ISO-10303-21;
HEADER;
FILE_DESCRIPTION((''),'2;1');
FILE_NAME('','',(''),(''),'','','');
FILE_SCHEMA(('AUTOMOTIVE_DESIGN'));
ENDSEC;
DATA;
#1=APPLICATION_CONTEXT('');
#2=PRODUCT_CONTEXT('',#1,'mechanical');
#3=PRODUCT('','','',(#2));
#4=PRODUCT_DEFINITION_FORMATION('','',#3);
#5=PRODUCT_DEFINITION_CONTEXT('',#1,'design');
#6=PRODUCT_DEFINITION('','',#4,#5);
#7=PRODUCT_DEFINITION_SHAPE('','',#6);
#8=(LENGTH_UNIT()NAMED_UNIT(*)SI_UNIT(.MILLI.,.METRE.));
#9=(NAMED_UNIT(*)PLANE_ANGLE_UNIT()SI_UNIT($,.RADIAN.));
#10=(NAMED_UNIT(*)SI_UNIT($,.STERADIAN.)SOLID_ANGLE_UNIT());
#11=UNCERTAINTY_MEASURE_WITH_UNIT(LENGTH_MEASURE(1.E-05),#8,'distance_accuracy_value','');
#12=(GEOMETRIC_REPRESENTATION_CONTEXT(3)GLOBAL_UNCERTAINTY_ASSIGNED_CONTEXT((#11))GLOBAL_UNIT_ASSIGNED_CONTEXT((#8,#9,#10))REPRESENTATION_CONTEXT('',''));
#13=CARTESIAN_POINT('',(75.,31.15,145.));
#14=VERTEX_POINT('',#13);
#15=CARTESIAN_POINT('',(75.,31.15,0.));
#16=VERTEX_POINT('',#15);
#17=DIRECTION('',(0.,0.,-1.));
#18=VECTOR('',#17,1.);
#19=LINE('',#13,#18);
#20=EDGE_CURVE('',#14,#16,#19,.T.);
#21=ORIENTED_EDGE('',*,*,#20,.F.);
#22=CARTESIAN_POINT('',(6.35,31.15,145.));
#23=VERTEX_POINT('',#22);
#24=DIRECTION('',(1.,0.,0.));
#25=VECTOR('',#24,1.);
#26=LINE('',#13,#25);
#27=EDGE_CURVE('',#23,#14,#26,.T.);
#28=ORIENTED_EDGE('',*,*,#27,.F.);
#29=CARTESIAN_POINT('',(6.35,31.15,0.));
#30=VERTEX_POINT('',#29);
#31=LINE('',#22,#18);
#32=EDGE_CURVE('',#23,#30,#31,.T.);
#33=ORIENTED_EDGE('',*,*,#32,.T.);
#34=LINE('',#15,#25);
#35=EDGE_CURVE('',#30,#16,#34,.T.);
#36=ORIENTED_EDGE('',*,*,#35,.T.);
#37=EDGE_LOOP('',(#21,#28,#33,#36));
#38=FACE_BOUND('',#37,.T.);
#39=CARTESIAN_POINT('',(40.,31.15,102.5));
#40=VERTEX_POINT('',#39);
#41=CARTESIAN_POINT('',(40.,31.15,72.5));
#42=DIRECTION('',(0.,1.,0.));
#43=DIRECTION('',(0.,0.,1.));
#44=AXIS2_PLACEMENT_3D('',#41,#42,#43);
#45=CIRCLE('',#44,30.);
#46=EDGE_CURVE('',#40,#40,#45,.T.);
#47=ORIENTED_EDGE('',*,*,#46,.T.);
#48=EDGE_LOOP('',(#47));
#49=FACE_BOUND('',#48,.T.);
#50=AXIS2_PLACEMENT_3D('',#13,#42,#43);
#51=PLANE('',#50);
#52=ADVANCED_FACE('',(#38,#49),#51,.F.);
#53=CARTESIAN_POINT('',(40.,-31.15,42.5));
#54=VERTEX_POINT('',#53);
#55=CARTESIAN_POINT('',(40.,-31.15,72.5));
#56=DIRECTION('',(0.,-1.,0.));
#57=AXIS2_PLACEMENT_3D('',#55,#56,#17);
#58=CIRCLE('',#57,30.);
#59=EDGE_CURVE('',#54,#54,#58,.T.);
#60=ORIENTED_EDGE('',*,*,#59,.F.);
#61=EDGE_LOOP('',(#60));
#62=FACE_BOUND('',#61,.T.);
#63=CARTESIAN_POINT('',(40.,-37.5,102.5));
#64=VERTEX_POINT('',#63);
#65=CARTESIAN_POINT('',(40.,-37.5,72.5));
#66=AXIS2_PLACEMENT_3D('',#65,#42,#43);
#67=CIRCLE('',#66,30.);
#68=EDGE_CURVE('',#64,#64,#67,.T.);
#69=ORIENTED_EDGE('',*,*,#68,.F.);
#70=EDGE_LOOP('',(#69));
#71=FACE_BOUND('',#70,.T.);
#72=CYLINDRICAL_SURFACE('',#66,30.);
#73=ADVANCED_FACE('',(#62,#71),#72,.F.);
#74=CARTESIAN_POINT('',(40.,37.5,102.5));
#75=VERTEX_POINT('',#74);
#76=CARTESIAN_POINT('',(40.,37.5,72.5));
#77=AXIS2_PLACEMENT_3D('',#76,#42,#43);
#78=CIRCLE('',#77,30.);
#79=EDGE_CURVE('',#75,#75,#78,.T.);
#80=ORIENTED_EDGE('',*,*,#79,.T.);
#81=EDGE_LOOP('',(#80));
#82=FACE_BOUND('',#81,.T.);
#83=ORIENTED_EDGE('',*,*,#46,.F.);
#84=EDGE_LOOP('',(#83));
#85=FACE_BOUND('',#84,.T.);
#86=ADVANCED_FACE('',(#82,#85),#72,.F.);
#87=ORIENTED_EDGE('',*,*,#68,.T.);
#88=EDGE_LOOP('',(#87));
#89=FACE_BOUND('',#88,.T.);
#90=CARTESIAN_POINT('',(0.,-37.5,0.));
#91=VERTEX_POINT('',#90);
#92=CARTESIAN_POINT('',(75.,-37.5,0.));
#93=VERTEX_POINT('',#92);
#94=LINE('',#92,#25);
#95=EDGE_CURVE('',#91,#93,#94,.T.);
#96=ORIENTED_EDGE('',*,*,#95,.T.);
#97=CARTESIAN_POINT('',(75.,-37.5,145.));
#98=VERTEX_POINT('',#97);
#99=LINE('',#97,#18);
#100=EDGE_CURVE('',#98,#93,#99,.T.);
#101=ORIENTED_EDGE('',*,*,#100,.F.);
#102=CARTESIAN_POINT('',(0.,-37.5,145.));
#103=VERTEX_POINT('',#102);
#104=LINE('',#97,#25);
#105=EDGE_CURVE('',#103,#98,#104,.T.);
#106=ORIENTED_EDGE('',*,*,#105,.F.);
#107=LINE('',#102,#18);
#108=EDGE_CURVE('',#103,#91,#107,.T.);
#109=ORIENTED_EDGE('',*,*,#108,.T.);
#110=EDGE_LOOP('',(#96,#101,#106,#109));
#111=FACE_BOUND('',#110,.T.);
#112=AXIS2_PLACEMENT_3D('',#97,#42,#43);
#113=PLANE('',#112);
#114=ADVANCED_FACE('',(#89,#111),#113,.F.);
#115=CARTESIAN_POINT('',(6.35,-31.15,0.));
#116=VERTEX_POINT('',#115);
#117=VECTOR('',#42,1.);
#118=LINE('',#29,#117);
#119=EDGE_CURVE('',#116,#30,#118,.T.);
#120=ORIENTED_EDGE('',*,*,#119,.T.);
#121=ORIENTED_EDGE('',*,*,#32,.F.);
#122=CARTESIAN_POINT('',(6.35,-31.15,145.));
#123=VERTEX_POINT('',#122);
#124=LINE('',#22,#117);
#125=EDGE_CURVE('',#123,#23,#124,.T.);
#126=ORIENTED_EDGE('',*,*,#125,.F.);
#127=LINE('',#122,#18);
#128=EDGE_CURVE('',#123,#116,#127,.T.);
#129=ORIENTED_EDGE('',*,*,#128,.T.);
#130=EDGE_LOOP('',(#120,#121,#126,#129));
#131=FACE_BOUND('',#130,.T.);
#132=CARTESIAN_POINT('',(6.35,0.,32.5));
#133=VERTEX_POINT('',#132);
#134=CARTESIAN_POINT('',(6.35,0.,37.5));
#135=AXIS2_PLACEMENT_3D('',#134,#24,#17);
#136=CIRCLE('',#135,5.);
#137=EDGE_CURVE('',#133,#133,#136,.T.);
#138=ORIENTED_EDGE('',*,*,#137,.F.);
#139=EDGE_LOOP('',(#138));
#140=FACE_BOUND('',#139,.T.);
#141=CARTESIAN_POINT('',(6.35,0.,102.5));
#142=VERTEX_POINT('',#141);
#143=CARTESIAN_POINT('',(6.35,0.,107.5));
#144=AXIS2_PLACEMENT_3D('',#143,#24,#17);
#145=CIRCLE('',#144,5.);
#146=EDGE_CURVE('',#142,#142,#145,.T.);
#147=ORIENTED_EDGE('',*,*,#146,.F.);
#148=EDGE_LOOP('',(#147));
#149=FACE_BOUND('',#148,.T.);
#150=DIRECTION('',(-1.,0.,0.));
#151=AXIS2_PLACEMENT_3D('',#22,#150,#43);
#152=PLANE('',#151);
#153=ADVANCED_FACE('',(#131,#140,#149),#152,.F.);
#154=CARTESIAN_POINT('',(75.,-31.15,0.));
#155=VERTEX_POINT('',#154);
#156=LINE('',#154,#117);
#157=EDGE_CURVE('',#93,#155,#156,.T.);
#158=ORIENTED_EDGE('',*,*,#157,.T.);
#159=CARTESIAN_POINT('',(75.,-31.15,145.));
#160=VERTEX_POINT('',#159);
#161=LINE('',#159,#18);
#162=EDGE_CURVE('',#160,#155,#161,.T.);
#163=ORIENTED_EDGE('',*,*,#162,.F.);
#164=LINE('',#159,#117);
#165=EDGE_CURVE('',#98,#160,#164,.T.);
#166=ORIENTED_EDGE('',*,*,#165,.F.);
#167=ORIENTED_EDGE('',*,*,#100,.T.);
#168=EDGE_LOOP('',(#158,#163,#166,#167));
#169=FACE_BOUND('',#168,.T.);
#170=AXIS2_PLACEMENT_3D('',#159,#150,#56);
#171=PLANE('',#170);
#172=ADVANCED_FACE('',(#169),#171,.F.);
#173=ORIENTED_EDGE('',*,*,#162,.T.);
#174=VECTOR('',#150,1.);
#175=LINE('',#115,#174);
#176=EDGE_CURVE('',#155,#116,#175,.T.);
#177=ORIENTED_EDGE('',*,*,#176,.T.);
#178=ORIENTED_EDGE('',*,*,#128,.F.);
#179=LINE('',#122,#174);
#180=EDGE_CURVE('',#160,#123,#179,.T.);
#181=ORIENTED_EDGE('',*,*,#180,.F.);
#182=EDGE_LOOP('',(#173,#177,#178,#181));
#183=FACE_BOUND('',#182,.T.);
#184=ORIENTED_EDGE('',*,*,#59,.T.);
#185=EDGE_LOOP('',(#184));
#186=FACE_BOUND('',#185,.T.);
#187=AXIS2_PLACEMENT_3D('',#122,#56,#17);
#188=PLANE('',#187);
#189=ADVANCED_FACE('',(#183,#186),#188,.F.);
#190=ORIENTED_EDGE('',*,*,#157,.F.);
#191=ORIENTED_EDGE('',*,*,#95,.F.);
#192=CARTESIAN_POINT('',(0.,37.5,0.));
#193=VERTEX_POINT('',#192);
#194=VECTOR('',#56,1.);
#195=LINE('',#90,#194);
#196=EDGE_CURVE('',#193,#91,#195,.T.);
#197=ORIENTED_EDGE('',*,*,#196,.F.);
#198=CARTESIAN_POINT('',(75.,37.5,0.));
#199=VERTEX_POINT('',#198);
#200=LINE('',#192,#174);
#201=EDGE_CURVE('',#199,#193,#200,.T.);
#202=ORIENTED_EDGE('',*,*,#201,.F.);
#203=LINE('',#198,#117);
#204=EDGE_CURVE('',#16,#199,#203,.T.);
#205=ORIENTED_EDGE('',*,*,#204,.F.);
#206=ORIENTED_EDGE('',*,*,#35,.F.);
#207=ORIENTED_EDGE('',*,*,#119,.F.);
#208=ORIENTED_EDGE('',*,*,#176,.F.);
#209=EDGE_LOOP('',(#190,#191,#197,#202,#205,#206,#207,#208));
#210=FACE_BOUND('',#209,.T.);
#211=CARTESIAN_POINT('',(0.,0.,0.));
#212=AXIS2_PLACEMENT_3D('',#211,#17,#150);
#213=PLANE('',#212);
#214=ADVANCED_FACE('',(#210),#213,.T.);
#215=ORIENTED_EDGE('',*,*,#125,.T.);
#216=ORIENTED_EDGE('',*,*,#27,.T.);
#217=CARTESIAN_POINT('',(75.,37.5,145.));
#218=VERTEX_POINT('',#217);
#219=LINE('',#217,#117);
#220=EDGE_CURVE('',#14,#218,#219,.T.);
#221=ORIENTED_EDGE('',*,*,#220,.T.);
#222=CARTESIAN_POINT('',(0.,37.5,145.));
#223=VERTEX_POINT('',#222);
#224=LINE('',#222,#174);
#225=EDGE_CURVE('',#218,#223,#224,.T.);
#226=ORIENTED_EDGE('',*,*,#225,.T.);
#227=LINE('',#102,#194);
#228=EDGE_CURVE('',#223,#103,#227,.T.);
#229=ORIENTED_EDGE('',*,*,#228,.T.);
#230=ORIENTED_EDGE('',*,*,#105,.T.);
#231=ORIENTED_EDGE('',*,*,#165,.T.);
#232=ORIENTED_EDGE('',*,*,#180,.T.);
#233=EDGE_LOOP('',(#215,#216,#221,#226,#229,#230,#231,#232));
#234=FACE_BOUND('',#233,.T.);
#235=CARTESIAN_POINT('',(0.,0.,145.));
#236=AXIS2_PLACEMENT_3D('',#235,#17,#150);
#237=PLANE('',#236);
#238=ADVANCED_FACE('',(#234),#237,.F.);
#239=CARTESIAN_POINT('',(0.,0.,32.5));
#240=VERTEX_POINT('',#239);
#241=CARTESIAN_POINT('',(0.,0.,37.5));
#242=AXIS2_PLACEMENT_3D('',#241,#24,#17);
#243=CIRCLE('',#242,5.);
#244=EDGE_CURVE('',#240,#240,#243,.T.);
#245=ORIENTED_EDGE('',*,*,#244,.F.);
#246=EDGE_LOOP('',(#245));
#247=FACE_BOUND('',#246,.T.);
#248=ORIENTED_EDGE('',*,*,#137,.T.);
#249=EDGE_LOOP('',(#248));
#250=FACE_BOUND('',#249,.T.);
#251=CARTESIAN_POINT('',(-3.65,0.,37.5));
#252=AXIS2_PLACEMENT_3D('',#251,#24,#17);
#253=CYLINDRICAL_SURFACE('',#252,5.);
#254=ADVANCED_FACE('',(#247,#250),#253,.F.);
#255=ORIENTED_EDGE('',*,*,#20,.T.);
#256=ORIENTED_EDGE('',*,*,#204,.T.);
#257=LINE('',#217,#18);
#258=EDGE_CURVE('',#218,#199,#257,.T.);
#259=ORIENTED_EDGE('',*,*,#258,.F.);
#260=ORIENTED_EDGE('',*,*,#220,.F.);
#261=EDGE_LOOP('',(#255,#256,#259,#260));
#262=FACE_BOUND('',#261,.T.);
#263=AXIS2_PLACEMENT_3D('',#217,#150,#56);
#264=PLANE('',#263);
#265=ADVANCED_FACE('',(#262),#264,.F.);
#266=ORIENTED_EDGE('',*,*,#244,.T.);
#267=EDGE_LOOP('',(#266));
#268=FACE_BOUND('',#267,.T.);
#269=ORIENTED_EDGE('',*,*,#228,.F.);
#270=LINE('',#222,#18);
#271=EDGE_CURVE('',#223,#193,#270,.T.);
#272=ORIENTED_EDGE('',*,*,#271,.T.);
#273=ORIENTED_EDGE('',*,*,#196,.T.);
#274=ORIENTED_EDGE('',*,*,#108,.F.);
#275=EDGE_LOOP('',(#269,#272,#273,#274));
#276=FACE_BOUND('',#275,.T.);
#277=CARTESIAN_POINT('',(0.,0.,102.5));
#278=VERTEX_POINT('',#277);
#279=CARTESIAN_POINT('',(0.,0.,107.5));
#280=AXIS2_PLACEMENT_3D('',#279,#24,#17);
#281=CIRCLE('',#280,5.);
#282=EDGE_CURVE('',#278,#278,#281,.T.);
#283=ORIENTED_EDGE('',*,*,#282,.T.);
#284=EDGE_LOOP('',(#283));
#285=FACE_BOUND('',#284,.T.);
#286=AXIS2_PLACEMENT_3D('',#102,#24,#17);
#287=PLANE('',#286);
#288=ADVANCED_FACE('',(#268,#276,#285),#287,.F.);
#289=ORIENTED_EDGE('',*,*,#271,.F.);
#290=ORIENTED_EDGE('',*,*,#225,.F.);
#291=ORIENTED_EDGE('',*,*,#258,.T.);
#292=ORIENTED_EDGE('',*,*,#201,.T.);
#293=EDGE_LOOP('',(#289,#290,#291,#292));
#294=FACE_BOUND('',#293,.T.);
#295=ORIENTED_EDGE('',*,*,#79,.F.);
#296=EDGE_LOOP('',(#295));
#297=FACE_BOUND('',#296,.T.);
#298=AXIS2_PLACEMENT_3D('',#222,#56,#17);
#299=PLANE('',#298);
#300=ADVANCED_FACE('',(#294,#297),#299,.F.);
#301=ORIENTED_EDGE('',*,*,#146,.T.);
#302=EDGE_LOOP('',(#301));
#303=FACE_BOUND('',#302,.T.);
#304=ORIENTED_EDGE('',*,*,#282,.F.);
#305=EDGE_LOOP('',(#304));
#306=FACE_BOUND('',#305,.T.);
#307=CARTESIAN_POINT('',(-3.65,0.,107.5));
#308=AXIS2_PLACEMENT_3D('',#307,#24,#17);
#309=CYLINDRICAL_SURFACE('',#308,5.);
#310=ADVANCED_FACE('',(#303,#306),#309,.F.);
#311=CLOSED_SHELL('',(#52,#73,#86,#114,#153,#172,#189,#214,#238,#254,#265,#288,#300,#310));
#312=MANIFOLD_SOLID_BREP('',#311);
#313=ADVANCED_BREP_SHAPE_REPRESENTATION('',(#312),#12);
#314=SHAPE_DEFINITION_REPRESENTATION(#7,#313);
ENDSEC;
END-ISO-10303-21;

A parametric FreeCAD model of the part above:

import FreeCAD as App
import Part
import Sketcher

V = App.Vector


def add_polygon(sketch, points):
    """Adds a closed chain of lines whose ends are joined by coincident constraints."""
    first, n = sketch.GeometryCount, len(points)
    for a, b in zip(points, points[1:] + points[:1]):
        sketch.addGeometry(Part.LineSegment(App.Vector(*a, 0), App.Vector(*b, 0)), False)
    for i in range(n):
        sketch.addConstraint(Sketcher.Constraint("Coincident", first + i, 2, first + (i + 1) % n, 1))

doc = App.newDocument("Part")
body = doc.addObject("PartDesign::Body", "Body")

sketch1 = body.newObject("Sketcher::SketchObject", "Sketch")
sketch1.AttachmentSupport = (doc.getObject("XY_Plane"), [""])
sketch1.MapMode = "FlatFace"
add_polygon(sketch1, [(0, 38), (0, -38), (75, -38), (75, -31), (6, -31), (6, 31), (75, 31), (75, 38)])
sketch1.addConstraint(Sketcher.Constraint("Vertical", 0))
sketch1.addConstraint(Sketcher.Constraint("Horizontal", 1))
sketch1.addConstraint(Sketcher.Constraint("Vertical", 2))
sketch1.addConstraint(Sketcher.Constraint("Horizontal", 3))
sketch1.addConstraint(Sketcher.Constraint("Vertical", 4))
sketch1.addConstraint(Sketcher.Constraint("Horizontal", 5))
sketch1.addConstraint(Sketcher.Constraint("Vertical", 6))
sketch1.addConstraint(Sketcher.Constraint("Horizontal", 7))
sketch1.addConstraint(Sketcher.Constraint("Symmetric", 0, 2, 7, 2, -1, 1))
sketch1.addConstraint(Sketcher.Constraint("Symmetric", 2, 2, 5, 2, -1))
sketch1.addConstraint(Sketcher.Constraint("Equal", 7, 0))
sketch1.addConstraint(Sketcher.Constraint("DistanceX", 1, 1, 1, 2, 75.0))
sketch1.addConstraint(Sketcher.Constraint("DistanceY", 4, 1, 4, 2, 62.3))
sketch1.addConstraint(Sketcher.Constraint("DistanceX", 3, 2, 3, 1, 68.65))
pad1 = body.newObject("PartDesign::Pad", "Pad")
pad1.Profile = sketch1
pad1.Length = 145

sketch2 = body.newObject("Sketcher::SketchObject", "Sketch001")
sketch2.AttachmentSupport = (doc.getObject("XZ_Plane"), [""])
sketch2.MapMode = "FlatFace"
sketch2.AttachmentOffset = App.Placement(V(0, 0, -37.5), App.Rotation())
sketch2.addGeometry(Part.Circle(V(40, 72, 0), V(0, 0, 1), 30), False)
sketch2.addConstraint(Sketcher.Constraint("Diameter", 0, 60.0))
sketch2.addConstraint(Sketcher.Constraint("DistanceX", -1, 1, 0, 3, 40.0))
sketch2.addConstraint(Sketcher.Constraint("DistanceY", -1, 1, 0, 3, 72.5))
pocket1 = body.newObject("PartDesign::Pocket", "Pocket")
pocket1.Profile = sketch2
pocket1.Type = "ThroughAll"
pocket1.Reversed = True

sketch3 = body.newObject("Sketcher::SketchObject", "Sketch002")
sketch3.AttachmentSupport = (doc.getObject("YZ_Plane"), [""])
sketch3.MapMode = "FlatFace"
sketch3.AttachmentOffset = App.Placement(V(0, 0, 6.35), App.Rotation())
sketch3.addGeometry(Part.Circle(V(0, 108, 0), V(0, 0, 1), 5), False)
sketch3.addGeometry(Part.Circle(V(0, 38, 0), V(0, 0, 1), 5), False)
sketch3.addConstraint(Sketcher.Constraint("Equal", 0, 1))
sketch3.addConstraint(Sketcher.Constraint("PointOnObject", 0, 3, -2))
sketch3.addConstraint(Sketcher.Constraint("PointOnObject", 1, 3, -2))
sketch3.addConstraint(Sketcher.Constraint("Diameter", 0, 10.0))
sketch3.addConstraint(Sketcher.Constraint("DistanceY", 1, 3, 0, 3, 70.0))
sketch3.addConstraint(Sketcher.Constraint("DistanceY", -1, 1, 0, 3, 107.5))
pocket2 = body.newObject("PartDesign::Pocket", "Pocket001")
pocket2.Profile = sketch3
pocket2.Length = 10

doc.recompute()
